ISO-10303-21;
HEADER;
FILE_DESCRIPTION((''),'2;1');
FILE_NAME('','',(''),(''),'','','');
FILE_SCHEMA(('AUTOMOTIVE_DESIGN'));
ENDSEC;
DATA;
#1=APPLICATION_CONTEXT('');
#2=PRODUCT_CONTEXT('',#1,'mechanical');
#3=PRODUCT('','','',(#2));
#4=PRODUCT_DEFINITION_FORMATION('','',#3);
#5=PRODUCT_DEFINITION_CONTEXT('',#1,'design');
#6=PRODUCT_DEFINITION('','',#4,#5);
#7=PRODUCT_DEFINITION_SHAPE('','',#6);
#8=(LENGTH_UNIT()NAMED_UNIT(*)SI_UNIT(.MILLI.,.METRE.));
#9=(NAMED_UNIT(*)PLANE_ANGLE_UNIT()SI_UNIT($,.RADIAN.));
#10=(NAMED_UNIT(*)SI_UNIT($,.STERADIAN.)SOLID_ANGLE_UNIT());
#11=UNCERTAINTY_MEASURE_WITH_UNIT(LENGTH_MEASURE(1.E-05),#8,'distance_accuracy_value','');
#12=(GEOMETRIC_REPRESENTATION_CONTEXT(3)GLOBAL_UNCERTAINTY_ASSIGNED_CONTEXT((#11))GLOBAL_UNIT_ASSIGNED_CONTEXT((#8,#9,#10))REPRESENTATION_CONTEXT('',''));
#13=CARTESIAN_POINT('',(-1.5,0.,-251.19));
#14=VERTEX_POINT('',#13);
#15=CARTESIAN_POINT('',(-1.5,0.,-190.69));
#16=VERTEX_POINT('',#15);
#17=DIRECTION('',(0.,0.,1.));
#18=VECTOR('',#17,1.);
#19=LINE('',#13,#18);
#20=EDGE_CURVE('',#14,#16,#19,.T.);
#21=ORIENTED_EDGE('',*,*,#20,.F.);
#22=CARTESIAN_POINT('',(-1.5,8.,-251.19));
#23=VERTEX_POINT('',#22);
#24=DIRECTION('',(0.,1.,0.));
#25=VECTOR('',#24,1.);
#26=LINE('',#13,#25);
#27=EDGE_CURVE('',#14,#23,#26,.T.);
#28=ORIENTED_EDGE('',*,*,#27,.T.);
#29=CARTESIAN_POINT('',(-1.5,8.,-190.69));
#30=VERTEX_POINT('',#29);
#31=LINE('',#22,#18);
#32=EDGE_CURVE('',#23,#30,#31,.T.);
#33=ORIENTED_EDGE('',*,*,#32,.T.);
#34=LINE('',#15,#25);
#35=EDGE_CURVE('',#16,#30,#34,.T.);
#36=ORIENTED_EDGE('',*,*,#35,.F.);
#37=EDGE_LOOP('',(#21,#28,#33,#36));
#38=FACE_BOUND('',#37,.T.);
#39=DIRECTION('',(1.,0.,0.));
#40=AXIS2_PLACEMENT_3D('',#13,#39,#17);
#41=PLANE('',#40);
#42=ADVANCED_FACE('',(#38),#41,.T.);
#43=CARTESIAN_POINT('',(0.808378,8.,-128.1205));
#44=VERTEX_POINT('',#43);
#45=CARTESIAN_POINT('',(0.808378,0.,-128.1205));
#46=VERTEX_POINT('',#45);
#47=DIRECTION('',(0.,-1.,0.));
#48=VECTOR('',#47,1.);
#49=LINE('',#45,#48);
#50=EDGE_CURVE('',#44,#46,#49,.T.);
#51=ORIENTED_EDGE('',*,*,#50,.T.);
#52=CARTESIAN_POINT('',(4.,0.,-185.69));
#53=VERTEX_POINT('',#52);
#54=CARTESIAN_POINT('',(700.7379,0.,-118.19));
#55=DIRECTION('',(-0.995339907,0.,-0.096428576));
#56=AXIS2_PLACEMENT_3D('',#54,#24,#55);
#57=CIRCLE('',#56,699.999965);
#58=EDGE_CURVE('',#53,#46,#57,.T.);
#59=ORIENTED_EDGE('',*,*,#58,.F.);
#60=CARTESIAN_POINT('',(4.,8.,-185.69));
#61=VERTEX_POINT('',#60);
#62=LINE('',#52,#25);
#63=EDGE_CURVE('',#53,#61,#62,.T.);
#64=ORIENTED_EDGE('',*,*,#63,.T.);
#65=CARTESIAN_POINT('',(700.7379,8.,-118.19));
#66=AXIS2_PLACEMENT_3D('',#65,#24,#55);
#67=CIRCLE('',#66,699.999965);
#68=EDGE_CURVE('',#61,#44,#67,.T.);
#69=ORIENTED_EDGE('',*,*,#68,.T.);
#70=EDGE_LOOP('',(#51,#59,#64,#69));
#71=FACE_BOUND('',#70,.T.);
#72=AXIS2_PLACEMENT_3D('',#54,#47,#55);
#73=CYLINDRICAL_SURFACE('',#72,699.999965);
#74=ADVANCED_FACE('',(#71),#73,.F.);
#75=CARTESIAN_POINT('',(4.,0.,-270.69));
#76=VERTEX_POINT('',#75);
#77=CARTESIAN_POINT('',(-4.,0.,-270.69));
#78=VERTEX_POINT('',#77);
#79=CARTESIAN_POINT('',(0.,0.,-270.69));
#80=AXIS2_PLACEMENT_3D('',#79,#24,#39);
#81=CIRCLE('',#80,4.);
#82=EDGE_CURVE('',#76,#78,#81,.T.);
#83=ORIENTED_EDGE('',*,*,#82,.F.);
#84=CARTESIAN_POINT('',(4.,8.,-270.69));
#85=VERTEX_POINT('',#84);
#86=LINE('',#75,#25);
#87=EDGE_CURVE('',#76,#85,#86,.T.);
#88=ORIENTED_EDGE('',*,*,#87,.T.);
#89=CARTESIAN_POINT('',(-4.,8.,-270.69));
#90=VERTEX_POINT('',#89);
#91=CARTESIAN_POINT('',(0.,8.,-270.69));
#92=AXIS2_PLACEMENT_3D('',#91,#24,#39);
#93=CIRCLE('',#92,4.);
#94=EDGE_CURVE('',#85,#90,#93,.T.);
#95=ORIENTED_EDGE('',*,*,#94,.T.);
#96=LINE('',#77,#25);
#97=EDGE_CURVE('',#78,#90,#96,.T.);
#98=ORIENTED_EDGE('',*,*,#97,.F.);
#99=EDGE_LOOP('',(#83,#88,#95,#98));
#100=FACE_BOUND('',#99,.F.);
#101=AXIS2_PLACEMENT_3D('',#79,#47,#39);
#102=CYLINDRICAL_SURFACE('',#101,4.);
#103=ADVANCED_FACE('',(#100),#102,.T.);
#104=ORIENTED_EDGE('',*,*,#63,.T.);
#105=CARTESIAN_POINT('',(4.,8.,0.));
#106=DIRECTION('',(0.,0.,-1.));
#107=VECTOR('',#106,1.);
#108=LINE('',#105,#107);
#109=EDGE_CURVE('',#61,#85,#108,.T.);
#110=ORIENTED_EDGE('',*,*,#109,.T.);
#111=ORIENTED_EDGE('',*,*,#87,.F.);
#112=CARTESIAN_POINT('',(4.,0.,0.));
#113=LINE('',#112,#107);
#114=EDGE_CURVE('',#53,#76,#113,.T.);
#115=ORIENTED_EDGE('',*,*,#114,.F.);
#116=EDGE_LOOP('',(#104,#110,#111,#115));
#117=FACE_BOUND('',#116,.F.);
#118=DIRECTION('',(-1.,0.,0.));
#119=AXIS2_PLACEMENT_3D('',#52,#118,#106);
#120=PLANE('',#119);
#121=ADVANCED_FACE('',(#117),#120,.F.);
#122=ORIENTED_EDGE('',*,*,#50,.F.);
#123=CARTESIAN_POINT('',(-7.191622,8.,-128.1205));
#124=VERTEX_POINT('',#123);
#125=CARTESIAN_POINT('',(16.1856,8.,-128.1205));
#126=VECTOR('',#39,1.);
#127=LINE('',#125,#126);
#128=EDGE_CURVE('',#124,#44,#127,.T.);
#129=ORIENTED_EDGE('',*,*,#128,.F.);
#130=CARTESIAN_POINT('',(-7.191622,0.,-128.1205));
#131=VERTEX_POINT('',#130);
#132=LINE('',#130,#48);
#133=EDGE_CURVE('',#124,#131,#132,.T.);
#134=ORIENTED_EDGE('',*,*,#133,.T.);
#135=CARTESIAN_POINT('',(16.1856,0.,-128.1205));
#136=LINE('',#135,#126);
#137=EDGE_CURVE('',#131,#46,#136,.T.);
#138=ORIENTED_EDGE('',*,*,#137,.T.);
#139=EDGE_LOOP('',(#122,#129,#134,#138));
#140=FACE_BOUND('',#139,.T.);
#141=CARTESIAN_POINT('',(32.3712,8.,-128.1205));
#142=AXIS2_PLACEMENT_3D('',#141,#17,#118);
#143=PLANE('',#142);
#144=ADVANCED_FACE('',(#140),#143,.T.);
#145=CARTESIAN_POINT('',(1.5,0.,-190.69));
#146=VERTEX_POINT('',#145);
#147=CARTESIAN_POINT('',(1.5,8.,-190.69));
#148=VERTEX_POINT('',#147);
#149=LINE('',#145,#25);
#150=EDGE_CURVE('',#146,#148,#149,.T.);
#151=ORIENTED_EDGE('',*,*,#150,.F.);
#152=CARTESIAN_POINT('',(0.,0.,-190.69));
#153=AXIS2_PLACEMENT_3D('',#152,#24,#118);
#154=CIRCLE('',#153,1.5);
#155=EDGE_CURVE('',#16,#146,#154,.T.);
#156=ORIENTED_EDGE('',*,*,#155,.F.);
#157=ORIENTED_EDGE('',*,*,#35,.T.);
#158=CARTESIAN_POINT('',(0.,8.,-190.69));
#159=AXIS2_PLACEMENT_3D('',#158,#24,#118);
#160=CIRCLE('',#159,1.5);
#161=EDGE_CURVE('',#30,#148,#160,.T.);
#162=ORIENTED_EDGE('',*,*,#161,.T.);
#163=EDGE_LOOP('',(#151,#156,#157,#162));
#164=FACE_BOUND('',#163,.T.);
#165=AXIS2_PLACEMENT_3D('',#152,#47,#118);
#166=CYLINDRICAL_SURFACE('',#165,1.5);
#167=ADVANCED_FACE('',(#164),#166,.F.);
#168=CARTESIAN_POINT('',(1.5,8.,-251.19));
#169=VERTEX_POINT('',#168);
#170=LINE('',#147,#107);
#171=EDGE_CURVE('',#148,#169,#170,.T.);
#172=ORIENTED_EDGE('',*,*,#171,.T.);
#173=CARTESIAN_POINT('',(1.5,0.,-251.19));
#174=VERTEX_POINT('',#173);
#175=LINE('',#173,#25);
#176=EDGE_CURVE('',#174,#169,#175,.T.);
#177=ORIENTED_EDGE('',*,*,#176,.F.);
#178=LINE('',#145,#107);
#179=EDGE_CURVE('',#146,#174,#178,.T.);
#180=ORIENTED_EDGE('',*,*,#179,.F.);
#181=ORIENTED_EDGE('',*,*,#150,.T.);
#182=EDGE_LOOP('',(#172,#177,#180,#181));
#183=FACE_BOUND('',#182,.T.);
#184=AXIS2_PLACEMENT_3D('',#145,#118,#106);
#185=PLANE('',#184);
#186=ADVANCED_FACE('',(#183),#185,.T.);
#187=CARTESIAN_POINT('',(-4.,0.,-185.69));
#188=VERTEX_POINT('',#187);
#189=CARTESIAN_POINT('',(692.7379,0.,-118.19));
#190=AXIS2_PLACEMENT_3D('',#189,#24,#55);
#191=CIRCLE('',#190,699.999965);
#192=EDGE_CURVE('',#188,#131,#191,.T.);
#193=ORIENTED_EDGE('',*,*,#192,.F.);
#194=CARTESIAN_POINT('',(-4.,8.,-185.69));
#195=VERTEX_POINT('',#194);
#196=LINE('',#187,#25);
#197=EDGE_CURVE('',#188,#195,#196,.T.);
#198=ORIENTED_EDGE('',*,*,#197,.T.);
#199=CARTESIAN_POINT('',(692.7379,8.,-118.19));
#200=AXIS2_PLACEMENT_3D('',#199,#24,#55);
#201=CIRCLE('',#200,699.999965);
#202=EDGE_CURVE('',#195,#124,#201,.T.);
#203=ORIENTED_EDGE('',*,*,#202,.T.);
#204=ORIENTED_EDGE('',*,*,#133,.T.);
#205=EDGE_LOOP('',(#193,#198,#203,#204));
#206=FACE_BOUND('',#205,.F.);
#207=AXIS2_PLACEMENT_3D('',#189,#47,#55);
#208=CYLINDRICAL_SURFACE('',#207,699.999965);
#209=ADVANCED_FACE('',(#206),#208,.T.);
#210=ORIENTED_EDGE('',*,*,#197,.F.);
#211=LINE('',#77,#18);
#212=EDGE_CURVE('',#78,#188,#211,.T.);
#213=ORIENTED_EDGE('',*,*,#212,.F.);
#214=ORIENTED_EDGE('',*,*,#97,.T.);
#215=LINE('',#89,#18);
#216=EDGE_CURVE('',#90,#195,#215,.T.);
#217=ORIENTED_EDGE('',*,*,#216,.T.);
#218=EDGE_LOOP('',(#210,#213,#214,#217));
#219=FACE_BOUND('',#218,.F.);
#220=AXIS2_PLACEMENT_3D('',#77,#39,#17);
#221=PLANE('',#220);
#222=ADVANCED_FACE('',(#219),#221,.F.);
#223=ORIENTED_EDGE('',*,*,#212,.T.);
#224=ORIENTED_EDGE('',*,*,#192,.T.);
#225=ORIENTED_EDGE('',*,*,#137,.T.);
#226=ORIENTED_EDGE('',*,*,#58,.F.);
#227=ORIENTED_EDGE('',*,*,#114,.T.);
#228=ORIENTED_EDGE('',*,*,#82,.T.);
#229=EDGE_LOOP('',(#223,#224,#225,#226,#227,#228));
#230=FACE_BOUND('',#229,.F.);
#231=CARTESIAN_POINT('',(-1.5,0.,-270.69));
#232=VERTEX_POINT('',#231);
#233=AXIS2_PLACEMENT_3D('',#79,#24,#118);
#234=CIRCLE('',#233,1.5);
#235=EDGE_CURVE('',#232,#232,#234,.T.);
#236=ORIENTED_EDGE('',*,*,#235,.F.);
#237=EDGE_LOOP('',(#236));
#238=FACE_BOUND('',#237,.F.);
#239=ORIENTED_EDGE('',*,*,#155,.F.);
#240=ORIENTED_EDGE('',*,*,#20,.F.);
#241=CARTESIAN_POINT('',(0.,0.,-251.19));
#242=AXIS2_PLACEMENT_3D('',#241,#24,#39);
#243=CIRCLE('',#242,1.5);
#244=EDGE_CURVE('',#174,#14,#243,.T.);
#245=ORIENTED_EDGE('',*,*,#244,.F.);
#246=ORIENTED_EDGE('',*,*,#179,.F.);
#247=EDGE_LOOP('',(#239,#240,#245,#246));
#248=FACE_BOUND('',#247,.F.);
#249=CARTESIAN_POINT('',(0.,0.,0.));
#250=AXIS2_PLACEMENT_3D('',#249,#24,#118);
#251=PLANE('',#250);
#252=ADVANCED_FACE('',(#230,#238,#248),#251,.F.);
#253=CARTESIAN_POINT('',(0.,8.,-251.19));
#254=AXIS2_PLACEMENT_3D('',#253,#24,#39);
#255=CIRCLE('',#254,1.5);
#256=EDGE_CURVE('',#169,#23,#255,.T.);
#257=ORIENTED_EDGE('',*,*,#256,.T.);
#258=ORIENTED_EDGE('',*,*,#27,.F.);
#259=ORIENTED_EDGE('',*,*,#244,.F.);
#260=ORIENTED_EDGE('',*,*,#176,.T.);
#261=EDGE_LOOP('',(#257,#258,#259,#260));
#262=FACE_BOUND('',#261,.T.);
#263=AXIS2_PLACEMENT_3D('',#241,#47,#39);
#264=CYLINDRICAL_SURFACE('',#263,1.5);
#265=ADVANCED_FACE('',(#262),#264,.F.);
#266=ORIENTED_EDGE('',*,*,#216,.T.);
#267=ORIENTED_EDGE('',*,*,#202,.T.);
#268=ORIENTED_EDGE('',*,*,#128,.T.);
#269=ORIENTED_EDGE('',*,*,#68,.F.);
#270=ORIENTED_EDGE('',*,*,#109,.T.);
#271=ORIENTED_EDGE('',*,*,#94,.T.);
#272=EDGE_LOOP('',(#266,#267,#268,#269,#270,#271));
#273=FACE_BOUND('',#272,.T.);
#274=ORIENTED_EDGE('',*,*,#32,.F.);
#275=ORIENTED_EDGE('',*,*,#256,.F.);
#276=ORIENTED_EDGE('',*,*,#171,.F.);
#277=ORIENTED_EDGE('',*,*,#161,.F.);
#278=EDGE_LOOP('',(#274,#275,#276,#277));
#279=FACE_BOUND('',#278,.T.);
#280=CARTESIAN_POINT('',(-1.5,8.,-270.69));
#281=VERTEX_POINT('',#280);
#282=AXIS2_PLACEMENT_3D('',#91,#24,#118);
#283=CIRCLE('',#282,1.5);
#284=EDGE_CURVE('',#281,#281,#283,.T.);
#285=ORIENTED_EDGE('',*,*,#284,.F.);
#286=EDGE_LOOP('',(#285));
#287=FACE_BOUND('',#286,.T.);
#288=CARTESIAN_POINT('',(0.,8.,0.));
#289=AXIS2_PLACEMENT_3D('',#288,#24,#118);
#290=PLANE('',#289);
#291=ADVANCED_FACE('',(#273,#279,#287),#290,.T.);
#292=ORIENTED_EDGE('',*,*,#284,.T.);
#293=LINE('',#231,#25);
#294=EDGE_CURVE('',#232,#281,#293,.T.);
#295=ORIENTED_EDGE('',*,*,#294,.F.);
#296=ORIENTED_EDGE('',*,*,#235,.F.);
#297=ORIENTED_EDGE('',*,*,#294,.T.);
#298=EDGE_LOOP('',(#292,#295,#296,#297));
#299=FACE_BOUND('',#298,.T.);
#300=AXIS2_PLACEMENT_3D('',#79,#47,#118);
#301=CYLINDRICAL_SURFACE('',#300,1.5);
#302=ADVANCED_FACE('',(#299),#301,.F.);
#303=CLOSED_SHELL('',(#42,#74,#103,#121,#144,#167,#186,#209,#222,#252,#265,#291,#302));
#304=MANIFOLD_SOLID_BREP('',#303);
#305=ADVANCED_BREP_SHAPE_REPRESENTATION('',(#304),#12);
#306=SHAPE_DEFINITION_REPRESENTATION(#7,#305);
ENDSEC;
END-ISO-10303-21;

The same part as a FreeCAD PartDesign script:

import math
import FreeCAD as App
import Part
import Sketcher

doc = App.newDocument("Part")
body = doc.addObject("PartDesign::Body", "Body")

# Sketch on XZ plane
sketch1 = doc.addObject("Sketcher::SketchObject", "Sketch")
body.addObject(sketch1)
sketch1.AttachmentSupport = (doc.XZ_Plane, [""])
sketch1.MapMode = "FlatFace"
sketch1.addGeometry([
    Part.ArcOfCircle(Part.Circle(App.Vector(0, 0, 0), App.Vector(0, 0, 1), 4), math.radians(0), math.radians(180)),  # 0
    Part.LineSegment(App.Vector(4, 0, 0), App.Vector(4, -50.69, 0)),  # 1
    Part.ArcOfCircle(Part.Circle(App.Vector(700.7379, -118.19, 0), App.Vector(0, 0, 1), 699.999965), math.radians(174.466451), math.radians(185.533549)),  # 2
    Part.LineSegment(App.Vector(4, -185.69, 0), App.Vector(4, -270.69, 0)),  # 3
    Part.ArcOfCircle(Part.Circle(App.Vector(0, -270.69, 0), App.Vector(0, 0, 1), 4), math.radians(180), math.radians(360)),  # 4
    Part.LineSegment(App.Vector(-4, -270.69, 0), App.Vector(-4, -185.69, 0)),  # 5
    Part.ArcOfCircle(Part.Circle(App.Vector(692.7379, -118.19, 0), App.Vector(0, 0, 1), 699.999965), math.radians(174.466451), math.radians(185.533549)),  # 6
    Part.LineSegment(App.Vector(-4, -50.69, 0), App.Vector(-4, 0, 0)),  # 7
    Part.Circle(App.Vector(0, -270.69, 0), App.Vector(0, 0, 1), 1.5),  # 8
    Part.LineSegment(App.Vector(-1.5, -190.69, 0), App.Vector(-1.5, -251.19, 0)),  # 9
    Part.ArcOfCircle(Part.Circle(App.Vector(0, -251.19, 0), App.Vector(0, 0, 1), 1.5), math.radians(180), math.radians(360)),  # 10
    Part.LineSegment(App.Vector(1.5, -251.19, 0), App.Vector(1.5, -190.69, 0)),  # 11
    Part.ArcOfCircle(Part.Circle(App.Vector(0, -190.69, 0), App.Vector(0, 0, 1), 1.5), math.radians(0), math.radians(180)),  # 12
    Part.Circle(App.Vector(0, 0, 0), App.Vector(0, 0, 1), 1.5),  # 13
], False)
sketch1.addConstraint([
    Sketcher.Constraint("Tangent", 0, 1, 1, 1),
    Sketcher.Constraint("Coincident", 1, 2, 2, 1),
    Sketcher.Constraint("Coincident", 2, 2, 3, 1),
    Sketcher.Constraint("Tangent", 3, 2, 4, 2),
    Sketcher.Constraint("Tangent", 4, 1, 5, 1),
    Sketcher.Constraint("Coincident", 5, 2, 6, 2),
    Sketcher.Constraint("Coincident", 6, 1, 7, 1),
    Sketcher.Constraint("Tangent", 7, 2, 0, 2),
    Sketcher.Constraint("Tangent", 9, 2, 10, 1),
    Sketcher.Constraint("Tangent", 10, 2, 11, 1),
    Sketcher.Constraint("Tangent", 11, 2, 12, 1),
    Sketcher.Constraint("Tangent", 12, 2, 9, 1),
    Sketcher.Constraint("Vertical", 1),
    Sketcher.Constraint("Vertical", 3),
    Sketcher.Constraint("Vertical", 5),
    Sketcher.Constraint("Vertical", 7),
    Sketcher.Constraint("Vertical", 9),
    Sketcher.Constraint("Vertical", 11),
    Sketcher.Constraint("Coincident", 0, 3, -1, 1),
    Sketcher.Constraint("Coincident", 13, 3, -1, 1),
    Sketcher.Constraint("Coincident", 8, 3, 4, 3),
    Sketcher.Constraint("Equal", 0, 4),
    Sketcher.Constraint("Equal", 2, 6),
    Sketcher.Constraint("Equal", 8, 10),
    Sketcher.Constraint("Equal", 12, 13),
    Sketcher.Constraint("PointOnObject", 4, 3, -2),
    Sketcher.Constraint("PointOnObject", 10, 3, -2),
    Sketcher.Constraint("Horizontal", 2, 3, 6, 3),
    Sketcher.Constraint("Equal", 3, 5),
    Sketcher.Constraint("Diameter", 8, 3.0),
    Sketcher.Constraint("Radius", 0, 4.0),
    Sketcher.Constraint("Radius", 2, 700.0),
    Sketcher.Constraint("DistanceY", 3, 2, 3, 1, 85.0),
    Sketcher.Constraint("DistanceY", 4, 3, 12, 3, 80.0),
    Sketcher.Constraint("DistanceY", 4, 3, 10, 3, 19.5),
    Sketcher.Constraint("DistanceY", 4, 3, -1, 1, 270.69),
    Sketcher.Constraint("DistanceY", 10, 3, 6, 3, 133.0),
])
pad1 = doc.addObject("PartDesign::Pad", "Pad")
body.addObject(pad1)
pad1.Profile = sketch1
pad1.Length = 8
pad1.Reversed = True

# Sketch on XZ plane
sketch2 = doc.addObject("Sketcher::SketchObject", "Sketch001")
body.addObject(sketch2)
sketch2.AttachmentSupport = (doc.XZ_Plane, [""])
sketch2.MapMode = "FlatFace"
sketch2.AttachmentOffset = App.Placement(App.Vector(0, 0, -8), App.Rotation())
sketch2.addGeometry([
    Part.LineSegment(App.Vector(61.009, -328.1158, 0), App.Vector(-75.6075, -328.1158, 0)),  # 0
    Part.LineSegment(App.Vector(-75.6075, -328.1158, 0), App.Vector(-75.6075, 56.3822, 0)),  # 1
    Part.LineSegment(App.Vector(-75.6075, 56.3822, 0), App.Vector(61.009, 56.3822, 0)),  # 2
    Part.LineSegment(App.Vector(61.009, 56.3822, 0), App.Vector(61.009, -328.1158, 0)),  # 3
    Part.LineSegment(App.Vector(-41.336, -128.1205, 0), App.Vector(-41.336, -299.9474, 0)),  # 4
    Part.LineSegment(App.Vector(-41.336, -299.9474, 0), App.Vector(32.3712, -299.9474, 0)),  # 5
    Part.LineSegment(App.Vector(32.3712, -299.9474, 0), App.Vector(32.3712, -128.1205, 0)),  # 6
    Part.LineSegment(App.Vector(32.3712, -128.1205, 0), App.Vector(-41.336, -128.1205, 0)),  # 7
], False)
sketch2.addConstraint([
    Sketcher.Constraint("Coincident", 0, 2, 1, 1),
    Sketcher.Constraint("Coincident", 1, 2, 2, 1),
    Sketcher.Constraint("Coincident", 2, 2, 3, 1),
    Sketcher.Constraint("Coincident", 3, 2, 0, 1),
    Sketcher.Constraint("Coincident", 4, 2, 5, 1),
    Sketcher.Constraint("Coincident", 5, 2, 6, 1),
    Sketcher.Constraint("Coincident", 6, 2, 7, 1),
    Sketcher.Constraint("Coincident", 7, 2, 4, 1),
    Sketcher.Constraint("Horizontal", 0),
    Sketcher.Constraint("Vertical", 1),
    Sketcher.Constraint("Horizontal", 2),
    Sketcher.Constraint("Vertical", 3),
    Sketcher.Constraint("Vertical", 4),
    Sketcher.Constraint("Horizontal", 5),
    Sketcher.Constraint("Vertical", 6),
    Sketcher.Constraint("Horizontal", 7),
    Sketcher.Constraint("DistanceY", 1, 1, 1, 2, 384.498),
    Sketcher.Constraint("DistanceY", 4, 2, 4, 1, 171.827),
    Sketcher.Constraint("DistanceX", 0, 2, 0, 1, 136.6165),
    Sketcher.Constraint("DistanceX", 5, 1, 5, 2, 73.7072),
    Sketcher.Constraint("DistanceX", -1, 1, 2, 2, 61.009),
    Sketcher.Constraint("DistanceX", 4, 2, -1, 1, 41.336),
    Sketcher.Constraint("DistanceY", 0, 2, -1, 1, 328.1158),
    Sketcher.Constraint("DistanceY", 4, 2, -1, 1, 299.9474),
])
pocket1 = doc.addObject("PartDesign::Pocket", "Pocket")
body.addObject(pocket1)
pocket1.Profile = sketch2
pocket1.Length = 20
pocket1.Midplane = True

doc.recompute()
